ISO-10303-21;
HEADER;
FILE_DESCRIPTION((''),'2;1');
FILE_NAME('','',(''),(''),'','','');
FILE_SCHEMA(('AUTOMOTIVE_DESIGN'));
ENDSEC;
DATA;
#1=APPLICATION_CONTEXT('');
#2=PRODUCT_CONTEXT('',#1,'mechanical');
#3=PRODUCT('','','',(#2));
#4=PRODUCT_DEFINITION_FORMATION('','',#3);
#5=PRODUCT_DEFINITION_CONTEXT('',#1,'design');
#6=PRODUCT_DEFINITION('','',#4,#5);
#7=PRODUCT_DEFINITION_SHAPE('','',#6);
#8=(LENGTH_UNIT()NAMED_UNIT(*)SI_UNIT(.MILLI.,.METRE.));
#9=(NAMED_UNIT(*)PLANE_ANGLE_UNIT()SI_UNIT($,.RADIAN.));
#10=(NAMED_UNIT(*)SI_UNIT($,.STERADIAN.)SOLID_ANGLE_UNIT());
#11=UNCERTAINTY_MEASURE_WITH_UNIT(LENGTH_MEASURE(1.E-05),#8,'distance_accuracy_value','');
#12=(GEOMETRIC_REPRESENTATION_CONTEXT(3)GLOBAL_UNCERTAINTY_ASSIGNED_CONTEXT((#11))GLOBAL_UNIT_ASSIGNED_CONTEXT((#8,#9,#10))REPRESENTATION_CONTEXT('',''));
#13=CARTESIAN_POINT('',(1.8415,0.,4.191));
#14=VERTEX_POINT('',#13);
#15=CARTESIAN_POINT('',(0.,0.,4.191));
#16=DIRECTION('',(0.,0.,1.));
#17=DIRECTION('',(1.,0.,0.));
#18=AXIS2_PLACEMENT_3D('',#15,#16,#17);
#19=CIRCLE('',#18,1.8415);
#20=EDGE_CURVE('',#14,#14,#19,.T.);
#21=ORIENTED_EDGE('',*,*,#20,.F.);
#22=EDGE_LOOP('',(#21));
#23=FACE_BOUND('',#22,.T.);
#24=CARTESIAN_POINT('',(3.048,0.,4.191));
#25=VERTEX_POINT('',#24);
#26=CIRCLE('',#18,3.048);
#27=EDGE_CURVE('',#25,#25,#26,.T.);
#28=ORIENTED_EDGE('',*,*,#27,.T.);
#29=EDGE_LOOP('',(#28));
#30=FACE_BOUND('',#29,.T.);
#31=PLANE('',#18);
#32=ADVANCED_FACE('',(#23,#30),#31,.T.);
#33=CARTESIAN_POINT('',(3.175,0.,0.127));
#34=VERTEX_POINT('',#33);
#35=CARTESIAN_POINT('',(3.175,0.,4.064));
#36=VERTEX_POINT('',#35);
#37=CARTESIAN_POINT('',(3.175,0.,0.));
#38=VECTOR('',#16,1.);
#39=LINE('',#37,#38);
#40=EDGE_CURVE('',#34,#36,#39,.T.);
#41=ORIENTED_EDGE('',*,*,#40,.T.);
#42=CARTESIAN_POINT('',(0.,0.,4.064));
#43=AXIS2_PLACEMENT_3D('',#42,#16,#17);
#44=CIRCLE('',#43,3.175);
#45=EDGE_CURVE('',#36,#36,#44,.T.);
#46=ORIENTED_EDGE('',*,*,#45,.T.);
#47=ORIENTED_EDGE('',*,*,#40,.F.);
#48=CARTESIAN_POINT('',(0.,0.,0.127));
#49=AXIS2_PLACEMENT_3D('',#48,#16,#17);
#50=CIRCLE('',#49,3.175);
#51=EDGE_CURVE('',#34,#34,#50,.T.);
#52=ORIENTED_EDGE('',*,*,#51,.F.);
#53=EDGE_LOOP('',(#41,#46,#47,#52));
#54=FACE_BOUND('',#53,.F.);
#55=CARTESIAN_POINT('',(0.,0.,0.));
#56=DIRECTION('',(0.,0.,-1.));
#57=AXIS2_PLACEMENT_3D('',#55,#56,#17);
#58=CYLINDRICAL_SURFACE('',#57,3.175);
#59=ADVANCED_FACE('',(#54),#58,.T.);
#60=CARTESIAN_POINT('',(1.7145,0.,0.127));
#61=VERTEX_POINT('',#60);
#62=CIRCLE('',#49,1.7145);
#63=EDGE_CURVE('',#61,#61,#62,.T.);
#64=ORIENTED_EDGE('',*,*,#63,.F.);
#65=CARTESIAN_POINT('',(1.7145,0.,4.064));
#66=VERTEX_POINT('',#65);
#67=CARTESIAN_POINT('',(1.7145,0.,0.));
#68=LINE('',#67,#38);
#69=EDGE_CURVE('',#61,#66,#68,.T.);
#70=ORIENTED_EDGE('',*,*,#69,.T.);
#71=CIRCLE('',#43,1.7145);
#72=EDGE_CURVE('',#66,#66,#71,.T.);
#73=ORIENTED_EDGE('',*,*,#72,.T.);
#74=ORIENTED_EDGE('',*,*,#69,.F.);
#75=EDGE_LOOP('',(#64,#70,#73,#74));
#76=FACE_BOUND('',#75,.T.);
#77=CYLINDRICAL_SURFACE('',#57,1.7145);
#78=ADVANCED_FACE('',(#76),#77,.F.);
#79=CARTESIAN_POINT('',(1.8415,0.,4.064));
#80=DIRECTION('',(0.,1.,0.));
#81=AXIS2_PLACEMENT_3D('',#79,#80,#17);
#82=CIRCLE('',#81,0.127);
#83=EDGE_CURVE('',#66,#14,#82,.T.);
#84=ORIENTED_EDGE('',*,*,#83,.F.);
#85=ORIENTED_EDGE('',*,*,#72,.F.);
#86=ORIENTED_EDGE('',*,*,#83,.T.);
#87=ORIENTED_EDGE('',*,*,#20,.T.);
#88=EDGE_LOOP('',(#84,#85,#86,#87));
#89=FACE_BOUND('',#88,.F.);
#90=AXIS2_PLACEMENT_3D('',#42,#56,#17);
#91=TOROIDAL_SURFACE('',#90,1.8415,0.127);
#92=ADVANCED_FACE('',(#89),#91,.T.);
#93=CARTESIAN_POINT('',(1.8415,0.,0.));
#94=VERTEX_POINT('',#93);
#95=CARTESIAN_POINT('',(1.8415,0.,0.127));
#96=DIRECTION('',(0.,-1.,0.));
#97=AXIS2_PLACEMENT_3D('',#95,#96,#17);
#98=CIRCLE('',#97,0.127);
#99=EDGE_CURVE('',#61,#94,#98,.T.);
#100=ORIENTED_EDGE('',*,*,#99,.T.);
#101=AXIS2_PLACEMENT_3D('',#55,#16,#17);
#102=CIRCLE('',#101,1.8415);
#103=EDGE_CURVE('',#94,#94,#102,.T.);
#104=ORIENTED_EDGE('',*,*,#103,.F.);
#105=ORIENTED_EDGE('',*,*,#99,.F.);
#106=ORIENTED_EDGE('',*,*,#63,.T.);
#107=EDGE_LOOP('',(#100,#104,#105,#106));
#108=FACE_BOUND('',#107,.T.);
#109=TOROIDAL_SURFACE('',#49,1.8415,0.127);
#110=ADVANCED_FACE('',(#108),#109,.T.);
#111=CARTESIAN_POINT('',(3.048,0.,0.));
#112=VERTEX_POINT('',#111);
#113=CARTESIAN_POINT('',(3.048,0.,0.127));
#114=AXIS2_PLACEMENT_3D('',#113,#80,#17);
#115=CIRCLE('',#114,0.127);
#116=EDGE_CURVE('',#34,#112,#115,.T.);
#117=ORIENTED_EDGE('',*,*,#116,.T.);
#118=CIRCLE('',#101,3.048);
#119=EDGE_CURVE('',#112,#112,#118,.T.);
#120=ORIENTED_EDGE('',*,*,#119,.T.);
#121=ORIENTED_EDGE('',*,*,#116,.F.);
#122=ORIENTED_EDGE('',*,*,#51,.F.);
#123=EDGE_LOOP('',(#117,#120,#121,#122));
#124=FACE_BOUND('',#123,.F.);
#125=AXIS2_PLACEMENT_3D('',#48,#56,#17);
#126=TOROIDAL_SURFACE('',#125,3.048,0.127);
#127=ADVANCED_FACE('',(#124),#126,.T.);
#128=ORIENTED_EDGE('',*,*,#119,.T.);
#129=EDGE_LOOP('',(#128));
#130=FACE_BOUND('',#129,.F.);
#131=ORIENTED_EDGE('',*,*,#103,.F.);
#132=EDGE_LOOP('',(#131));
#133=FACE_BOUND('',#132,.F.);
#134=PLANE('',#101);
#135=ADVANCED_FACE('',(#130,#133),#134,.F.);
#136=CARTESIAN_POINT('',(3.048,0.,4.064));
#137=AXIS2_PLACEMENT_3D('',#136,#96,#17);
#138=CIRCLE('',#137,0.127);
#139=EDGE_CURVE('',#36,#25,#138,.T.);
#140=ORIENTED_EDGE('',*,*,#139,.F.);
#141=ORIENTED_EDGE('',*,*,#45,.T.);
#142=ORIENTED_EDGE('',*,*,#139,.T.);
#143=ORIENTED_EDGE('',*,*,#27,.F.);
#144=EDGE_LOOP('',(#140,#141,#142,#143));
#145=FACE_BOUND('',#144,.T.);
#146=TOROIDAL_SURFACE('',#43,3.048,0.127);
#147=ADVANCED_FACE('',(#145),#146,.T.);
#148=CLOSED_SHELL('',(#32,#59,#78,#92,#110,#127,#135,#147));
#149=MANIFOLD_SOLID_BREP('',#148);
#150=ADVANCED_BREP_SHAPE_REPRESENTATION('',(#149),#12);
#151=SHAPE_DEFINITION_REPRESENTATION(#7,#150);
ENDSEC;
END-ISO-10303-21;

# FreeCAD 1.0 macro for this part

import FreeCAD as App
import Part
import Sketcher
Q = App.Units.Quantity


def edges_at(feature, points):
    """Names of the edges that pass closest to the given points."""
    edges = feature.Shape.Edges
    near = lambda p: min(range(len(edges)), key=lambda i: edges[i].distToShape(Part.Vertex(*p))[0])
    return sorted({f"Edge{near(p) + 1}" for p in points})

doc = App.newDocument("Part")
body = doc.addObject("PartDesign::Body", "Body")

sketch1 = body.newObject("Sketcher::SketchObject", "Sketch")
sketch1.AttachmentSupport = (doc.getObject("XY_Plane"), [""])
sketch1.MapMode = "FlatFace"
sketch1.addGeometry([
    Part.Circle(App.Vector(0, 0, 0), App.Vector(0, 0, 1), 3.2),
    Part.Circle(App.Vector(0, 0, 0), App.Vector(0, 0, 1), 1.7),
], False)
sketch1.addConstraint([
    Sketcher.Constraint("Coincident", 0, 3, -1, 1),
    Sketcher.Constraint("Coincident", 1, 3, -1, 1),
    Sketcher.Constraint("Diameter", 0, Q("0.25 in")),
    Sketcher.Constraint("Diameter", 1, Q("0.135 in")),
])
pad1 = body.newObject("PartDesign::Pad", "Pad")
pad1.Profile = sketch1
pad1.Length = Q("0.165 in")
doc.recompute()

fillet = body.newObject("PartDesign::Fillet", "Fillet")
fillet.Base = (pad1, edges_at(pad1, [
    (-1.714, 0, 4.191),
    (-3.175, 0, 4.191),
    (-1.714, 0, 0),
    (-3.175, 0, 0),
]))
fillet.Radius = Q("0.005 in")

doc.recompute()
